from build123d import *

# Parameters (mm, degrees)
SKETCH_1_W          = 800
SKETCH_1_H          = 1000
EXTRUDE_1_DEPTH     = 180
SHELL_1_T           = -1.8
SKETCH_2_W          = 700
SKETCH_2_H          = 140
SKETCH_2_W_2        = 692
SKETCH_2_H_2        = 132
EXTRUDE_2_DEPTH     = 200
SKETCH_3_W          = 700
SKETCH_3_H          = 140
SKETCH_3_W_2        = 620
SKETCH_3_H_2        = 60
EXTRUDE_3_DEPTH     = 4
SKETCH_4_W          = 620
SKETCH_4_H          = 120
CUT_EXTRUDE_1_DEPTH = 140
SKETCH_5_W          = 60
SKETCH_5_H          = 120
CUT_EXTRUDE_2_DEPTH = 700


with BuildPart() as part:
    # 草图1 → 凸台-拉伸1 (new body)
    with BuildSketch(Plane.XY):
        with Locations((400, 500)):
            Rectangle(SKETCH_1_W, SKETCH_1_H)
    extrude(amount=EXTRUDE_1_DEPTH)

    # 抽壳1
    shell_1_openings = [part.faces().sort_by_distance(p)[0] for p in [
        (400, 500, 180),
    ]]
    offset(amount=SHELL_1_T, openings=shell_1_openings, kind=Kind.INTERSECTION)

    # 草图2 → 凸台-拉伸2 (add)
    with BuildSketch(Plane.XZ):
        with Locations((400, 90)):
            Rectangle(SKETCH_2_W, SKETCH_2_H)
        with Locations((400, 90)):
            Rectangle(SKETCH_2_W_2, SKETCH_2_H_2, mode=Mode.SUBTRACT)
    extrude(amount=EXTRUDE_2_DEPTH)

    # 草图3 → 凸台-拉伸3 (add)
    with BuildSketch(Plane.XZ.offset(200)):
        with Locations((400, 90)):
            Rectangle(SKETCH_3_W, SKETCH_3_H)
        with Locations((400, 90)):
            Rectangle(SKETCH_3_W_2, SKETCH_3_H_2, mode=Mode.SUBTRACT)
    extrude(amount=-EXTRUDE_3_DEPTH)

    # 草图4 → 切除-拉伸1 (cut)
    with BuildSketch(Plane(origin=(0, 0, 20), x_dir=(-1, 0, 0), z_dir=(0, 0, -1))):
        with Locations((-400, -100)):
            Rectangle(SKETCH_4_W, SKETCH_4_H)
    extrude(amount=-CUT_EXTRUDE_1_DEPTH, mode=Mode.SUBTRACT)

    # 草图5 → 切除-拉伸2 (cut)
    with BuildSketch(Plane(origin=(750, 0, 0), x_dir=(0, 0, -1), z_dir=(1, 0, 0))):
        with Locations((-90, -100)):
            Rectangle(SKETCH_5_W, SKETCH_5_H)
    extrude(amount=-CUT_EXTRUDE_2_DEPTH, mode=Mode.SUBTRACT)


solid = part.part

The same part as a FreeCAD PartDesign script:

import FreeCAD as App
import Part
import Sketcher

V = App.Vector
Q = App.Units.Quantity


def faces_at(feature, points):
    """Names of the faces that lie closest to the given points."""
    faces = feature.Shape.Faces
    near = lambda p: min(range(len(faces)), key=lambda i: faces[i].distToShape(Part.Vertex(*p))[0])
    return sorted({f"Face{near(p) + 1}" for p in points})


def add_polygon(sketch, points):
    """Adds a closed chain of lines whose ends are joined by coincident constraints."""
    first, n = sketch.GeometryCount, len(points)
    for a, b in zip(points, points[1:] + points[:1]):
        sketch.addGeometry(Part.LineSegment(App.Vector(*a, 0), App.Vector(*b, 0)), False)
    for i in range(n):
        sketch.addConstraint(Sketcher.Constraint("Coincident", first + i, 2, first + (i + 1) % n, 1))

doc = App.newDocument("Part")
params = doc.addObject("Spreadsheet::Sheet", "Params")
for row, (alias, value) in enumerate([
    ("sketch1_width", "800 mm"),
    ("sketch1_height", "1000 mm"),
    ("pad1_length", "180 mm"),
    ("thickness_wall", "1.8 mm"),
    ("sketch2_width", "700 mm"),
    ("sketch2_width2", "692 mm"),
    ("sketch2_height", "140 mm"),
    ("sketch2_height2", "132 mm"),
    ("pad2_length", "200 mm"),
    ("sketch3_width", "700 mm"),
    ("sketch3_width2", "620 mm"),
    ("sketch3_height", "140 mm"),
    ("sketch3_height2", "60 mm"),
    ("pad3_length", "4 mm"),
    ("sketch4_width", "620 mm"),
    ("sketch4_height", "120 mm"),
    ("pocket1_length", "140 mm"),
    ("sketch5_width", "120 mm"),
    ("sketch5_height", "60 mm"),
    ("pocket2_length", "700 mm"),
], start=1):
    params.set(f"A{row}", alias)
    params.set(f"B{row}", "=" + value)
    params.setAlias(f"B{row}", alias)

body = doc.addObject("PartDesign::Body", "Body")

# Sketch on XY plane
sketch1 = body.newObject("Sketcher::SketchObject", "Sketch")
sketch1.AttachmentSupport = (doc.getObject("XY_Plane"), [""])
sketch1.MapMode = "FlatFace"
add_polygon(sketch1, [(0, 1000), (0, 0), (800, 0), (800, 1000)])  # lines 0-3
sketch1.addConstraint(Sketcher.Constraint("Vertical", 0))
sketch1.addConstraint(Sketcher.Constraint("Horizontal", 1))
sketch1.addConstraint(Sketcher.Constraint("Vertical", 2))
sketch1.addConstraint(Sketcher.Constraint("Horizontal", 3))
sketch1.addConstraint(Sketcher.Constraint("Coincident", 0, 2, -1, 1))
sketch1.addConstraint(Sketcher.Constraint("DistanceX", 1, 1, 1, 2, Q("800 mm")))
sketch1.addConstraint(Sketcher.Constraint("DistanceY", 0, 2, 0, 1, Q("1000 mm")))
sketch1.setExpression("Constraints[9]", "Params.sketch1_width")
sketch1.setExpression("Constraints[10]", "Params.sketch1_height")
pad1 = body.newObject("PartDesign::Pad", "Pad")
pad1.Profile = sketch1
pad1.setExpression("Length", "Params.pad1_length")
doc.recompute()

thickness = body.newObject("PartDesign::Thickness", "Thickness")
thickness.Base = (pad1, faces_at(pad1, [(400, 500, 180)]))
thickness.setExpression("Value", "Params.thickness_wall")
thickness.Reversed = True
thickness.Join = "Intersection"

# Sketch on XZ plane
sketch2 = body.newObject("Sketcher::SketchObject", "Sketch001")
sketch2.AttachmentSupport = (doc.getObject("XZ_Plane"), [""])
sketch2.MapMode = "FlatFace"
add_polygon(sketch2, [(50, 160), (50, 20), (750, 20), (750, 160)])  # lines 0-3
add_polygon(sketch2, [(746, 24), (54, 24), (54, 156), (746, 156)])  # lines 4-7
sketch2.addConstraint(Sketcher.Constraint("Vertical", 0))
sketch2.addConstraint(Sketcher.Constraint("Horizontal", 1))
sketch2.addConstraint(Sketcher.Constraint("Vertical", 2))
sketch2.addConstraint(Sketcher.Constraint("Horizontal", 3))
sketch2.addConstraint(Sketcher.Constraint("Horizontal", 4))
sketch2.addConstraint(Sketcher.Constraint("Vertical", 5))
sketch2.addConstraint(Sketcher.Constraint("Horizontal", 6))
sketch2.addConstraint(Sketcher.Constraint("Vertical", 7))
sketch2.addConstraint(Sketcher.Constraint("DistanceX", 1, 1, 1, 2, Q("700 mm")))
sketch2.addConstraint(Sketcher.Constraint("DistanceX", 4, 2, 4, 1, Q("692 mm")))
sketch2.addConstraint(Sketcher.Constraint("DistanceY", 0, 2, 0, 1, Q("140 mm")))
sketch2.addConstraint(Sketcher.Constraint("DistanceY", 5, 1, 5, 2, Q("132 mm")))
sketch2.addConstraint(Sketcher.Constraint("DistanceX", -1, 1, 0, 2, Q("50 mm")))
sketch2.addConstraint(Sketcher.Constraint("DistanceY", -1, 1, 0, 2, Q("20 mm")))
sketch2.addConstraint(Sketcher.Constraint("DistanceX", -1, 1, 4, 2, Q("54 mm")))
sketch2.addConstraint(Sketcher.Constraint("DistanceY", -1, 1, 4, 2, Q("24 mm")))
sketch2.setExpression("Constraints[16]", "Params.sketch2_width")
sketch2.setExpression("Constraints[17]", "Params.sketch2_width2")
sketch2.setExpression("Constraints[18]", "Params.sketch2_height")
sketch2.setExpression("Constraints[19]", "Params.sketch2_height2")
pad2 = body.newObject("PartDesign::Pad", "Pad001")
pad2.Profile = sketch2
pad2.setExpression("Length", "Params.pad2_length")

# Sketch on XZ plane
sketch3 = body.newObject("Sketcher::SketchObject", "Sketch002")
sketch3.AttachmentSupport = (doc.getObject("XZ_Plane"), [""])
sketch3.MapMode = "FlatFace"
sketch3.AttachmentOffset = App.Placement(V(0, 0, 200), App.Rotation())
add_polygon(sketch3, [(50, 160), (50, 20), (750, 20), (750, 160)])  # lines 0-3
add_polygon(sketch3, [(710, 60), (90, 60), (90, 120), (710, 120)])  # lines 4-7
sketch3.addConstraint(Sketcher.Constraint("Vertical", 0))
sketch3.addConstraint(Sketcher.Constraint("Horizontal", 1))
sketch3.addConstraint(Sketcher.Constraint("Vertical", 2))
sketch3.addConstraint(Sketcher.Constraint("Horizontal", 3))
sketch3.addConstraint(Sketcher.Constraint("Horizontal", 4))
sketch3.addConstraint(Sketcher.Constraint("Vertical", 5))
sketch3.addConstraint(Sketcher.Constraint("Horizontal", 6))
sketch3.addConstraint(Sketcher.Constraint("Vertical", 7))
sketch3.addConstraint(Sketcher.Constraint("DistanceX", 1, 1, 1, 2, Q("700 mm")))
sketch3.addConstraint(Sketcher.Constraint("DistanceX", 4, 2, 4, 1, Q("620 mm")))
sketch3.addConstraint(Sketcher.Constraint("DistanceY", 0, 2, 0, 1, Q("140 mm")))
sketch3.addConstraint(Sketcher.Constraint("DistanceY", 5, 1, 5, 2, Q("60 mm")))
sketch3.addConstraint(Sketcher.Constraint("DistanceX", -1, 1, 0, 2, Q("50 mm")))
sketch3.addConstraint(Sketcher.Constraint("DistanceY", -1, 1, 0, 2, Q("20 mm")))
sketch3.addConstraint(Sketcher.Constraint("DistanceX", -1, 1, 4, 2, Q("90 mm")))
sketch3.addConstraint(Sketcher.Constraint("DistanceY", -1, 1, 4, 2, Q("60 mm")))
sketch3.setExpression("Constraints[16]", "Params.sketch3_width")
sketch3.setExpression("Constraints[17]", "Params.sketch3_width2")
sketch3.setExpression("Constraints[18]", "Params.sketch3_height")
sketch3.setExpression("Constraints[19]", "Params.sketch3_height2")
pad3 = body.newObject("PartDesign::Pad", "Pad002")
pad3.Profile = sketch3
pad3.setExpression("Length", "Params.pad3_length")
pad3.Reversed = True

# Sketch on XY plane
sketch4 = body.newObject("Sketcher::SketchObject", "Sketch003")
sketch4.AttachmentSupport = (doc.getObject("XY_Plane"), [""])
sketch4.MapMode = "FlatFace"
sketch4.AttachmentOffset = App.Placement(V(0, 0, 20), App.Rotation())
add_polygon(sketch4, [(710, -40), (710, -160), (90, -160), (90, -40)])  # lines 0-3
sketch4.addConstraint(Sketcher.Constraint("Vertical", 0))
sketch4.addConstraint(Sketcher.Constraint("Horizontal", 1))
sketch4.addConstraint(Sketcher.Constraint("Vertical", 2))
sketch4.addConstraint(Sketcher.Constraint("Horizontal", 3))
sketch4.addConstraint(Sketcher.Constraint("DistanceX", 1, 2, 1, 1, Q("620 mm")))
sketch4.addConstraint(Sketcher.Constraint("DistanceY", 0, 2, 0, 1, Q("120 mm")))
sketch4.addConstraint(Sketcher.Constraint("DistanceX", -1, 1, 0, 2, Q("710 mm")))
sketch4.addConstraint(Sketcher.Constraint("DistanceY", 0, 2, -1, 1, Q("160 mm")))
sketch4.setExpression("Constraints[8]", "Params.sketch4_width")
sketch4.setExpression("Constraints[9]", "Params.sketch4_height")
pocket1 = body.newObject("PartDesign::Pocket", "Pocket")
pocket1.Profile = sketch4
pocket1.setExpression("Length", "Params.pocket1_length")
pocket1.Reversed = True

# Sketch on YZ plane
sketch5 = body.newObject("Sketcher::SketchObject", "Sketch004")
sketch5.AttachmentSupport = (doc.getObject("YZ_Plane"), [""])
sketch5.MapMode = "FlatFace"
sketch5.AttachmentOffset = App.Placement(V(0, 0, 750), App.Rotation())
add_polygon(sketch5, [(-40, 120), (-160, 120), (-160, 60), (-40, 60)])  # lines 0-3
sketch5.addConstraint(Sketcher.Constraint("Horizontal", 0))
sketch5.addConstraint(Sketcher.Constraint("Vertical", 1))
sketch5.addConstraint(Sketcher.Constraint("Horizontal", 2))
sketch5.addConstraint(Sketcher.Constraint("Vertical", 3))
sketch5.addConstraint(Sketcher.Constraint("DistanceX", 0, 2, 0, 1, Q("120 mm")))
sketch5.addConstraint(Sketcher.Constraint("DistanceY", 1, 2, 1, 1, Q("60 mm")))
sketch5.addConstraint(Sketcher.Constraint("DistanceX", 0, 2, -1, 1, Q("160 mm")))
sketch5.addConstraint(Sketcher.Constraint("DistanceY", -1, 1, 0, 2, Q("120 mm")))
sketch5.setExpression("Constraints[8]", "Params.sketch5_width")
sketch5.setExpression("Constraints[9]", "Params.sketch5_height")
pocket2 = body.newObject("PartDesign::Pocket", "Pocket001")
pocket2.Profile = sketch5
pocket2.setExpression("Length", "Params.pocket2_length")

doc.recompute()
